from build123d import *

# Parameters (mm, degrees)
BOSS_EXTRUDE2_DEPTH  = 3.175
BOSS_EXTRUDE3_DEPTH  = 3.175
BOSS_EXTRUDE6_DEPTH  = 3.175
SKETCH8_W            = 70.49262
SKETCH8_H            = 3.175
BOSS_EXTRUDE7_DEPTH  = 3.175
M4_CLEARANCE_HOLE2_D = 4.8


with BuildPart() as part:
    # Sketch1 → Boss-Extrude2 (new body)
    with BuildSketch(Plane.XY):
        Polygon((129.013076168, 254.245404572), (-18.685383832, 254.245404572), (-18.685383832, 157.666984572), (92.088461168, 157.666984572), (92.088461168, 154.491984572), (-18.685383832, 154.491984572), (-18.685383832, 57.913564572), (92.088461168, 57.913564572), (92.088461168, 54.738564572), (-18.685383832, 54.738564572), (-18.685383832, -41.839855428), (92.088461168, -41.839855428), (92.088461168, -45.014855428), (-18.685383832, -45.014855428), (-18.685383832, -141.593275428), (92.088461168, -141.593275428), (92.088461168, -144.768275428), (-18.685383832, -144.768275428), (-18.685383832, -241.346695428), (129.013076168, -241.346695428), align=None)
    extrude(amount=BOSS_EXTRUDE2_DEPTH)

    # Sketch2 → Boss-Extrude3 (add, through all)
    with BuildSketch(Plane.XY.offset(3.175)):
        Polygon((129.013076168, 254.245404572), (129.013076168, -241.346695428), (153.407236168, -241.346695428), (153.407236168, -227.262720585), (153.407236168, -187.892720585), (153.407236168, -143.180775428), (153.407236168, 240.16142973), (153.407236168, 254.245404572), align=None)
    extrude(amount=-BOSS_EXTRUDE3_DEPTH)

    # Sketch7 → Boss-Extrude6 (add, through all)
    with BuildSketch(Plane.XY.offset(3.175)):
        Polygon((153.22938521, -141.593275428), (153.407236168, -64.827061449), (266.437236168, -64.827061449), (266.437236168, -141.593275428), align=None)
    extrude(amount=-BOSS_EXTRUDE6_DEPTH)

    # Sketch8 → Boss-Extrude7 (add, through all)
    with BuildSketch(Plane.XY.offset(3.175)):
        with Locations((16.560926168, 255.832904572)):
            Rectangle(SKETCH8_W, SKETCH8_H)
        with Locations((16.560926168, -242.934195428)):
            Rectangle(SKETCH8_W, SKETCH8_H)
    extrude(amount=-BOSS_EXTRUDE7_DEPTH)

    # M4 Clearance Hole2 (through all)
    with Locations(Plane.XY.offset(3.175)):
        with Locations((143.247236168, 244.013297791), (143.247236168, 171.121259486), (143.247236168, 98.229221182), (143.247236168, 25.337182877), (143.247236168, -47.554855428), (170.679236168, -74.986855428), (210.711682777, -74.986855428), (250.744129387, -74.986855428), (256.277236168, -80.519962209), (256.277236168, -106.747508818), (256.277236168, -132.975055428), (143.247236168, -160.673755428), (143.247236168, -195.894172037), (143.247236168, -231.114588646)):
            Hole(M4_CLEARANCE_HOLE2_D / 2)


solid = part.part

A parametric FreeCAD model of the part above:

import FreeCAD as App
import Part
import Sketcher
from FreeCAD import Vector
Q = App.Units.Quantity

doc = App.newDocument("Part")
body = doc.addObject("PartDesign::Body", "Body")

# Sketch on XY plane
sketch1 = doc.addObject("Sketcher::SketchObject", "Sketch")
body.addObject(sketch1)
sketch1.AttachmentSupport = (doc.XY_Plane, [""])
sketch1.MapMode = "FlatFace"
sketch1.addGeometry([
    Part.LineSegment(Vector(129.013076, 254.245405, 0), Vector(-18.685384, 254.245405, 0)),  # 0
    Part.LineSegment(Vector(-18.685384, 254.245405, 0), Vector(-18.685384, 157.666985, 0)),  # 1
    Part.LineSegment(Vector(-18.685384, 157.666985, 0), Vector(92.088461, 157.666985, 0)),  # 2
    Part.LineSegment(Vector(92.088461, 157.666985, 0), Vector(92.088461, 154.491985, 0)),  # 3
    Part.LineSegment(Vector(92.088461, 154.491985, 0), Vector(-18.685384, 154.491985, 0)),  # 4
    Part.LineSegment(Vector(-18.685384, 154.491985, 0), Vector(-18.685384, 57.913565, 0)),  # 5
    Part.LineSegment(Vector(-18.685384, 57.913565, 0), Vector(92.088461, 57.913565, 0)),  # 6
    Part.LineSegment(Vector(92.088461, 57.913565, 0), Vector(92.088461, 54.738565, 0)),  # 7
    Part.LineSegment(Vector(92.088461, 54.738565, 0), Vector(-18.685384, 54.738565, 0)),  # 8
    Part.LineSegment(Vector(-18.685384, 54.738565, 0), Vector(-18.685384, -41.839855, 0)),  # 9
    Part.LineSegment(Vector(-18.685384, -41.839855, 0), Vector(92.088461, -41.839855, 0)),  # 10
    Part.LineSegment(Vector(92.088461, -41.839855, 0), Vector(92.088461, -45.014855, 0)),  # 11
    Part.LineSegment(Vector(92.088461, -45.014855, 0), Vector(-18.685384, -45.014855, 0)),  # 12
    Part.LineSegment(Vector(-18.685384, -45.014855, 0), Vector(-18.685384, -141.593275, 0)),  # 13
    Part.LineSegment(Vector(-18.685384, -141.593275, 0), Vector(92.088461, -141.593275, 0)),  # 14
    Part.LineSegment(Vector(92.088461, -141.593275, 0), Vector(92.088461, -144.768275, 0)),  # 15
    Part.LineSegment(Vector(92.088461, -144.768275, 0), Vector(-18.685384, -144.768275, 0)),  # 16
    Part.LineSegment(Vector(-18.685384, -144.768275, 0), Vector(-18.685384, -241.346695, 0)),  # 17
    Part.LineSegment(Vector(-18.685384, -241.346695, 0), Vector(129.013076, -241.346695, 0)),  # 18
    Part.LineSegment(Vector(129.013076, -241.346695, 0), Vector(129.013076, 254.245405, 0)),  # 19
], False)
sketch1.addConstraint([
    Sketcher.Constraint("Coincident", 0, 2, 1, 1),
    Sketcher.Constraint("Coincident", 1, 2, 2, 1),
    Sketcher.Constraint("Coincident", 2, 2, 3, 1),
    Sketcher.Constraint("Coincident", 3, 2, 4, 1),
    Sketcher.Constraint("Coincident", 4, 2, 5, 1),
    Sketcher.Constraint("Coincident", 5, 2, 6, 1),
    Sketcher.Constraint("Coincident", 6, 2, 7, 1),
    Sketcher.Constraint("Coincident", 7, 2, 8, 1),
    Sketcher.Constraint("Coincident", 8, 2, 9, 1),
    Sketcher.Constraint("Coincident", 9, 2, 10, 1),
    Sketcher.Constraint("Coincident", 10, 2, 11, 1),
    Sketcher.Constraint("Coincident", 11, 2, 12, 1),
    Sketcher.Constraint("Coincident", 12, 2, 13, 1),
    Sketcher.Constraint("Coincident", 13, 2, 14, 1),
    Sketcher.Constraint("Coincident", 14, 2, 15, 1),
    Sketcher.Constraint("Coincident", 15, 2, 16, 1),
    Sketcher.Constraint("Coincident", 16, 2, 17, 1),
    Sketcher.Constraint("Coincident", 17, 2, 18, 1),
    Sketcher.Constraint("Coincident", 18, 2, 19, 1),
    Sketcher.Constraint("Coincident", 19, 2, 0, 1),
    Sketcher.Constraint("Horizontal", 0),
    Sketcher.Constraint("Vertical", 1),
    Sketcher.Constraint("Horizontal", 2),
    Sketcher.Constraint("Vertical", 3),
    Sketcher.Constraint("Horizontal", 4),
    Sketcher.Constraint("Vertical", 5),
    Sketcher.Constraint("Horizontal", 6),
    Sketcher.Constraint("Vertical", 7),
    Sketcher.Constraint("Horizontal", 8),
    Sketcher.Constraint("Vertical", 9),
    Sketcher.Constraint("Horizontal", 10),
    Sketcher.Constraint("Vertical", 11),
    Sketcher.Constraint("Horizontal", 12),
    Sketcher.Constraint("Vertical", 13),
    Sketcher.Constraint("Horizontal", 14),
    Sketcher.Constraint("Vertical", 15),
    Sketcher.Constraint("Horizontal", 16),
    Sketcher.Constraint("Vertical", 17),
    Sketcher.Constraint("Horizontal", 18),
    Sketcher.Constraint("Vertical", 19),
    Sketcher.Constraint("Vertical", 1, 2, 4, 2),
    Sketcher.Constraint("Vertical", 3, 2, 6, 2),
    Sketcher.Constraint("Vertical", 5, 2, 8, 2),
    Sketcher.Constraint("Vertical", 7, 2, 10, 2),
    Sketcher.Constraint("Vertical", 9, 2, 12, 2),
    Sketcher.Constraint("Vertical", 11, 2, 14, 2),
    Sketcher.Constraint("Vertical", 13, 2, 16, 2),
    Sketcher.Constraint("Equal", 1, 5),
    Sketcher.Constraint("Equal", 3, 7),
    Sketcher.Constraint("Equal", 5, 9),
    Sketcher.Constraint("Equal", 7, 11),
    Sketcher.Constraint("Equal", 9, 13),
    Sketcher.Constraint("Equal", 11, 15),
    Sketcher.Constraint("Equal", 13, 17),
    Sketcher.Constraint("DistanceY", 3, 2, 3, 1, Q("0.125 in")),
    Sketcher.Constraint("DistanceX", 0, 2, 0, 1, Q("5.8149 in")),
    Sketcher.Constraint("DistanceY", 1, 2, 1, 1, Q("3.8023 in")),
    Sketcher.Constraint("DistanceX", 2, 1, 2, 2, Q("110.773845 mm")),
    Sketcher.Constraint("DistanceX", -1, 1, 2, 2, Q("92.088461 mm")),
    Sketcher.Constraint("DistanceY", -1, 1, 0, 2, Q("254.245405 mm")),
])
pad1 = doc.addObject("PartDesign::Pad", "Pad")
body.addObject(pad1)
pad1.Profile = sketch1
pad1.Length = Q("0.125 in")

# Sketch on XY plane
sketch2 = doc.addObject("Sketcher::SketchObject", "Sketch001")
body.addObject(sketch2)
sketch2.AttachmentSupport = (doc.XY_Plane, [""])
sketch2.MapMode = "FlatFace"
sketch2.AttachmentOffset = App.Placement(Vector(0, 0, 0.125 * 25.4), App.Rotation())
sketch2.addGeometry([
    Part.LineSegment(Vector(129.013076, 254.245405, 0), Vector(129.013076, -241.346695, 0)),
    Part.LineSegment(Vector(129.013076, -241.346695, 0), Vector(153.407236, -241.346695, 0)),
    Part.LineSegment(Vector(153.407236, -241.346695, 0), Vector(153.407236, 254.245405, 0)),
    Part.LineSegment(Vector(153.407236, 254.245405, 0), Vector(129.013076, 254.245405, 0)),
], False)
sketch2.addConstraint([
    Sketcher.Constraint("Coincident", 0, 2, 1, 1),
    Sketcher.Constraint("Coincident", 1, 2, 2, 1),
    Sketcher.Constraint("Coincident", 2, 2, 3, 1),
    Sketcher.Constraint("Coincident", 3, 2, 0, 1),
    Sketcher.Constraint("Vertical", 0),
    Sketcher.Constraint("Horizontal", 1),
    Sketcher.Constraint("Vertical", 2),
    Sketcher.Constraint("Horizontal", 3),
    Sketcher.Constraint("DistanceX", 1, 1, 1, 2, Q("0.9604 in")),
    Sketcher.Constraint("DistanceY", 0, 2, 0, 1, Q("19.5115 in")),
    Sketcher.Constraint("DistanceX", -1, 1, 0, 2, Q("129.013076 mm")),
    Sketcher.Constraint("DistanceY", 0, 2, -1, 1, Q("241.346695 mm")),
])
pad2 = doc.addObject("PartDesign::Pad", "Pad001")
body.addObject(pad2)
pad2.Profile = sketch2
pad2.Length = Q("0.125 in")
pad2.Reversed = True

# Sketch on XY plane
sketch3 = doc.addObject("Sketcher::SketchObject", "Sketch002")
body.addObject(sketch3)
sketch3.AttachmentSupport = (doc.XY_Plane, [""])
sketch3.MapMode = "FlatFace"
sketch3.AttachmentOffset = App.Placement(Vector(0, 0, 0.125 * 25.4), App.Rotation())
sketch3.addGeometry([
    Part.LineSegment(Vector(153.407236, -64.827061, 0), Vector(153.229385, -141.593275, 0)),
    Part.LineSegment(Vector(153.229385, -141.593275, 0), Vector(266.437236, -141.593275, 0)),
    Part.LineSegment(Vector(266.437236, -141.593275, 0), Vector(266.437236, -64.827061, 0)),
    Part.LineSegment(Vector(266.437236, -64.827061, 0), Vector(153.407236, -64.827061, 0)),
], False)
sketch3.addConstraint([
    Sketcher.Constraint("Coincident", 0, 2, 1, 1),
    Sketcher.Constraint("Coincident", 1, 2, 2, 1),
    Sketcher.Constraint("Coincident", 2, 2, 3, 1),
    Sketcher.Constraint("Coincident", 3, 2, 0, 1),
    Sketcher.Constraint("Horizontal", 1),
    Sketcher.Constraint("Vertical", 2),
    Sketcher.Constraint("Horizontal", 3),
    Sketcher.Constraint("DistanceX", 3, 2, 3, 1, Q("4.45 in")),
    Sketcher.Constraint("Distance", 0, Q("3.0223 in")),
    Sketcher.Constraint("DistanceX", 1, 1, 1, 2, Q("113.207851 mm")),
    Sketcher.Constraint("DistanceY", 2, 2, -1, 1, Q("64.827061 mm")),
    Sketcher.Constraint("DistanceX", -1, 1, 0, 2, Q("153.229385 mm")),
])
pad3 = doc.addObject("PartDesign::Pad", "Pad002")
body.addObject(pad3)
pad3.Profile = sketch3
pad3.Length = Q("0.125 in")
pad3.Reversed = True

# Sketch on XY plane
sketch4 = doc.addObject("Sketcher::SketchObject", "Sketch003")
body.addObject(sketch4)
sketch4.AttachmentSupport = (doc.XY_Plane, [""])
sketch4.MapMode = "FlatFace"
sketch4.AttachmentOffset = App.Placement(Vector(0, 0, 0.125 * 25.4), App.Rotation())
sketch4.addGeometry([
    Part.LineSegment(Vector(-18.685384, 257.420405, 0), Vector(-18.685384, 254.245405, 0)),  # 0
    Part.LineSegment(Vector(-18.685384, 254.245405, 0), Vector(51.807236, 254.245405, 0)),  # 1
    Part.LineSegment(Vector(51.807236, 254.245405, 0), Vector(51.807236, 257.420405, 0)),  # 2
    Part.LineSegment(Vector(51.807236, 257.420405, 0), Vector(-18.685384, 257.420405, 0)),  # 3
    Part.LineSegment(Vector(-18.685384, -241.346695, 0), Vector(-18.685384, -244.521695, 0)),  # 4
    Part.LineSegment(Vector(-18.685384, -244.521695, 0), Vector(51.807236, -244.521695, 0)),  # 5
    Part.LineSegment(Vector(51.807236, -244.521695, 0), Vector(51.807236, -241.346695, 0)),  # 6
    Part.LineSegment(Vector(51.807236, -241.346695, 0), Vector(-18.685384, -241.346695, 0)),  # 7
], False)
sketch4.addConstraint([
    Sketcher.Constraint("Coincident", 0, 2, 1, 1),
    Sketcher.Constraint("Coincident", 1, 2, 2, 1),
    Sketcher.Constraint("Coincident", 2, 2, 3, 1),
    Sketcher.Constraint("Coincident", 3, 2, 0, 1),
    Sketcher.Constraint("Coincident", 4, 2, 5, 1),
    Sketcher.Constraint("Coincident", 5, 2, 6, 1),
    Sketcher.Constraint("Coincident", 6, 2, 7, 1),
    Sketcher.Constraint("Coincident", 7, 2, 4, 1),
    Sketcher.Constraint("Vertical", 0),
    Sketcher.Constraint("Horizontal", 1),
    Sketcher.Constraint("Vertical", 2),
    Sketcher.Constraint("Horizontal", 3),
    Sketcher.Constraint("Vertical", 4),
    Sketcher.Constraint("Horizontal", 5),
    Sketcher.Constraint("Vertical", 6),
    Sketcher.Constraint("Horizontal", 7),
    Sketcher.Constraint("Vertical", 3, 2, 4, 2),
    Sketcher.Constraint("Vertical", 2, 2, 5, 2),
    Sketcher.Constraint("Equal", 2, 4),
    Sketcher.Constraint("DistanceY", 0, 2, 0, 1, Q("0.125 in")),
    Sketcher.Constraint("DistanceX", 1, 1, 1, 2, Q("2.7753 in")),
    Sketcher.Constraint("DistanceY", 4, 2, 0, 2, Q("19.6365 in")),
    Sketcher.Constraint("DistanceX", 0, 2, -1, 1, Q("18.685384 mm")),
    Sketcher.Constraint("DistanceY", -1, 1, 0, 2, Q("254.245405 mm")),
])
pad4 = doc.addObject("PartDesign::Pad", "Pad003")
body.addObject(pad4)
pad4.Profile = sketch4
pad4.Type = "UpToLast"
pad4.Reversed = True

# Sketch on XY plane
sketch5 = doc.addObject("Sketcher::SketchObject", "Sketch004")
body.addObject(sketch5)
sketch5.AttachmentSupport = (doc.XY_Plane, [""])
sketch5.MapMode = "FlatFace"
sketch5.AttachmentOffset = App.Placement(Vector(0, 0, 0.125 * 25.4), App.Rotation())
sketch5.addGeometry([
    Part.Circle(Vector(143.247236, 244.013298, 0), Vector(0, 0, 1), 2.4),  # 0
    Part.Circle(Vector(143.247236, 171.121259, 0), Vector(0, 0, 1), 2.4),  # 1
    Part.Circle(Vector(143.247236, 98.229221, 0), Vector(0, 0, 1), 2.4),  # 2
    Part.Circle(Vector(143.247236, 25.337183, 0), Vector(0, 0, 1), 2.4),  # 3
    Part.Circle(Vector(143.247236, -47.554855, 0), Vector(0, 0, 1), 2.4),  # 4
    Part.Circle(Vector(170.679236, -74.986855, 0), Vector(0, 0, 1), 2.4),  # 5
    Part.Circle(Vector(210.711683, -74.986855, 0), Vector(0, 0, 1), 2.4),  # 6
    Part.Circle(Vector(250.744129, -74.986855, 0), Vector(0, 0, 1), 2.4),  # 7
    Part.Circle(Vector(256.277236, -80.519962, 0), Vector(0, 0, 1), 2.4),  # 8
    Part.Circle(Vector(256.277236, -106.747509, 0), Vector(0, 0, 1), 2.4),  # 9
    Part.Circle(Vector(256.277236, -132.975055, 0), Vector(0, 0, 1), 2.4),  # 10
    Part.Circle(Vector(143.247236, -160.673755, 0), Vector(0, 0, 1), 2.4),  # 11
    Part.Circle(Vector(143.247236, -195.894172, 0), Vector(0, 0, 1), 2.4),  # 12
    Part.Circle(Vector(143.247236, -231.114589, 0), Vector(0, 0, 1), 2.4),  # 13
], False)
sketch5.addConstraint([
    Sketcher.Constraint("Equal", 0, 1),
    Sketcher.Constraint("Equal", 1, 2),
    Sketcher.Constraint("Equal", 2, 3),
    Sketcher.Constraint("Equal", 3, 4),
    Sketcher.Constraint("Equal", 4, 5),
    Sketcher.Constraint("Equal", 5, 6),
    Sketcher.Constraint("Equal", 6, 7),
    Sketcher.Constraint("Equal", 7, 8),
    Sketcher.Constraint("Equal", 8, 9),
    Sketcher.Constraint("Equal", 9, 10),
    Sketcher.Constraint("Equal", 10, 11),
    Sketcher.Constraint("Equal", 11, 12),
    Sketcher.Constraint("Equal", 12, 13),
    Sketcher.Constraint("Horizontal", 5, 3, 6, 3),
    Sketcher.Constraint("Horizontal", 6, 3, 7, 3),
    Sketcher.Constraint("Vertical", 0, 3, 1, 3),
    Sketcher.Constraint("Vertical", 1, 3, 2, 3),
    Sketcher.Constraint("Vertical", 2, 3, 3, 3),
    Sketcher.Constraint("Vertical", 3, 3, 4, 3),
    Sketcher.Constraint("Vertical", 8, 3, 9, 3),
    Sketcher.Constraint("Vertical", 9, 3, 10, 3),
    Sketcher.Constraint("Vertical", 4, 3, 11, 3),
    Sketcher.Constraint("Vertical", 11, 3, 12, 3),
    Sketcher.Constraint("Vertical", 12, 3, 13, 3),
    Sketcher.Constraint("Diameter", 0, Q("4.8 mm")),
    Sketcher.Constraint("DistanceX", 4, 3, 5, 3, Q("1.08 in")),
    Sketcher.Constraint("DistanceY", 5, 3, 4, 3, Q("1.08 in")),
    Sketcher.Constraint("DistanceX", 5, 3, 8, 3, Q("3.37 in")),
    Sketcher.Constraint("DistanceY", 10, 3, 7, 3, Q("2.283 in")),
    Sketcher.Constraint("DistanceY", 11, 3, 5, 3, Q("3.3735 in")),
    Sketcher.Constraint("DistanceY", -1, 1, 1, 3, Q("171.121259 mm")),
    Sketcher.Constraint("DistanceY", -1, 1, 2, 3, Q("98.229221 mm")),
    Sketcher.Constraint("DistanceX", -1, 1, 7, 3, Q("250.744129 mm")),
    Sketcher.Constraint("DistanceY", 9, 3, -1, 1, Q("106.747509 mm")),
    Sketcher.Constraint("DistanceY", 13, 3, -1, 1, Q("231.114589 mm")),
    Sketcher.Constraint("DistanceY", 1, 3, 0, 3, Q("72.892038 mm")),
    Sketcher.Constraint("DistanceY", 3, 3, 2, 3, Q("72.892038 mm")),
    Sketcher.Constraint("DistanceY", 4, 3, 3, 3, Q("72.892038 mm")),
    Sketcher.Constraint("DistanceX", -1, 1, 0, 3, Q("143.247236 mm")),
    Sketcher.Constraint("DistanceX", -1, 1, 6, 3, Q("210.711683 mm")),
    Sketcher.Constraint("DistanceY", 8, 3, -1, 1, Q("80.519962 mm")),
    Sketcher.Constraint("DistanceY", 12, 3, -1, 1, Q("195.894172 mm")),
])
doc.recompute()
hole = doc.addObject("PartDesign::Hole", "Hole")
body.addObject(hole)
hole.Profile = sketch5
hole.ThreadType = "None"
hole.Diameter = 4.8
hole.DepthType = "ThroughAll"

doc.recompute()
